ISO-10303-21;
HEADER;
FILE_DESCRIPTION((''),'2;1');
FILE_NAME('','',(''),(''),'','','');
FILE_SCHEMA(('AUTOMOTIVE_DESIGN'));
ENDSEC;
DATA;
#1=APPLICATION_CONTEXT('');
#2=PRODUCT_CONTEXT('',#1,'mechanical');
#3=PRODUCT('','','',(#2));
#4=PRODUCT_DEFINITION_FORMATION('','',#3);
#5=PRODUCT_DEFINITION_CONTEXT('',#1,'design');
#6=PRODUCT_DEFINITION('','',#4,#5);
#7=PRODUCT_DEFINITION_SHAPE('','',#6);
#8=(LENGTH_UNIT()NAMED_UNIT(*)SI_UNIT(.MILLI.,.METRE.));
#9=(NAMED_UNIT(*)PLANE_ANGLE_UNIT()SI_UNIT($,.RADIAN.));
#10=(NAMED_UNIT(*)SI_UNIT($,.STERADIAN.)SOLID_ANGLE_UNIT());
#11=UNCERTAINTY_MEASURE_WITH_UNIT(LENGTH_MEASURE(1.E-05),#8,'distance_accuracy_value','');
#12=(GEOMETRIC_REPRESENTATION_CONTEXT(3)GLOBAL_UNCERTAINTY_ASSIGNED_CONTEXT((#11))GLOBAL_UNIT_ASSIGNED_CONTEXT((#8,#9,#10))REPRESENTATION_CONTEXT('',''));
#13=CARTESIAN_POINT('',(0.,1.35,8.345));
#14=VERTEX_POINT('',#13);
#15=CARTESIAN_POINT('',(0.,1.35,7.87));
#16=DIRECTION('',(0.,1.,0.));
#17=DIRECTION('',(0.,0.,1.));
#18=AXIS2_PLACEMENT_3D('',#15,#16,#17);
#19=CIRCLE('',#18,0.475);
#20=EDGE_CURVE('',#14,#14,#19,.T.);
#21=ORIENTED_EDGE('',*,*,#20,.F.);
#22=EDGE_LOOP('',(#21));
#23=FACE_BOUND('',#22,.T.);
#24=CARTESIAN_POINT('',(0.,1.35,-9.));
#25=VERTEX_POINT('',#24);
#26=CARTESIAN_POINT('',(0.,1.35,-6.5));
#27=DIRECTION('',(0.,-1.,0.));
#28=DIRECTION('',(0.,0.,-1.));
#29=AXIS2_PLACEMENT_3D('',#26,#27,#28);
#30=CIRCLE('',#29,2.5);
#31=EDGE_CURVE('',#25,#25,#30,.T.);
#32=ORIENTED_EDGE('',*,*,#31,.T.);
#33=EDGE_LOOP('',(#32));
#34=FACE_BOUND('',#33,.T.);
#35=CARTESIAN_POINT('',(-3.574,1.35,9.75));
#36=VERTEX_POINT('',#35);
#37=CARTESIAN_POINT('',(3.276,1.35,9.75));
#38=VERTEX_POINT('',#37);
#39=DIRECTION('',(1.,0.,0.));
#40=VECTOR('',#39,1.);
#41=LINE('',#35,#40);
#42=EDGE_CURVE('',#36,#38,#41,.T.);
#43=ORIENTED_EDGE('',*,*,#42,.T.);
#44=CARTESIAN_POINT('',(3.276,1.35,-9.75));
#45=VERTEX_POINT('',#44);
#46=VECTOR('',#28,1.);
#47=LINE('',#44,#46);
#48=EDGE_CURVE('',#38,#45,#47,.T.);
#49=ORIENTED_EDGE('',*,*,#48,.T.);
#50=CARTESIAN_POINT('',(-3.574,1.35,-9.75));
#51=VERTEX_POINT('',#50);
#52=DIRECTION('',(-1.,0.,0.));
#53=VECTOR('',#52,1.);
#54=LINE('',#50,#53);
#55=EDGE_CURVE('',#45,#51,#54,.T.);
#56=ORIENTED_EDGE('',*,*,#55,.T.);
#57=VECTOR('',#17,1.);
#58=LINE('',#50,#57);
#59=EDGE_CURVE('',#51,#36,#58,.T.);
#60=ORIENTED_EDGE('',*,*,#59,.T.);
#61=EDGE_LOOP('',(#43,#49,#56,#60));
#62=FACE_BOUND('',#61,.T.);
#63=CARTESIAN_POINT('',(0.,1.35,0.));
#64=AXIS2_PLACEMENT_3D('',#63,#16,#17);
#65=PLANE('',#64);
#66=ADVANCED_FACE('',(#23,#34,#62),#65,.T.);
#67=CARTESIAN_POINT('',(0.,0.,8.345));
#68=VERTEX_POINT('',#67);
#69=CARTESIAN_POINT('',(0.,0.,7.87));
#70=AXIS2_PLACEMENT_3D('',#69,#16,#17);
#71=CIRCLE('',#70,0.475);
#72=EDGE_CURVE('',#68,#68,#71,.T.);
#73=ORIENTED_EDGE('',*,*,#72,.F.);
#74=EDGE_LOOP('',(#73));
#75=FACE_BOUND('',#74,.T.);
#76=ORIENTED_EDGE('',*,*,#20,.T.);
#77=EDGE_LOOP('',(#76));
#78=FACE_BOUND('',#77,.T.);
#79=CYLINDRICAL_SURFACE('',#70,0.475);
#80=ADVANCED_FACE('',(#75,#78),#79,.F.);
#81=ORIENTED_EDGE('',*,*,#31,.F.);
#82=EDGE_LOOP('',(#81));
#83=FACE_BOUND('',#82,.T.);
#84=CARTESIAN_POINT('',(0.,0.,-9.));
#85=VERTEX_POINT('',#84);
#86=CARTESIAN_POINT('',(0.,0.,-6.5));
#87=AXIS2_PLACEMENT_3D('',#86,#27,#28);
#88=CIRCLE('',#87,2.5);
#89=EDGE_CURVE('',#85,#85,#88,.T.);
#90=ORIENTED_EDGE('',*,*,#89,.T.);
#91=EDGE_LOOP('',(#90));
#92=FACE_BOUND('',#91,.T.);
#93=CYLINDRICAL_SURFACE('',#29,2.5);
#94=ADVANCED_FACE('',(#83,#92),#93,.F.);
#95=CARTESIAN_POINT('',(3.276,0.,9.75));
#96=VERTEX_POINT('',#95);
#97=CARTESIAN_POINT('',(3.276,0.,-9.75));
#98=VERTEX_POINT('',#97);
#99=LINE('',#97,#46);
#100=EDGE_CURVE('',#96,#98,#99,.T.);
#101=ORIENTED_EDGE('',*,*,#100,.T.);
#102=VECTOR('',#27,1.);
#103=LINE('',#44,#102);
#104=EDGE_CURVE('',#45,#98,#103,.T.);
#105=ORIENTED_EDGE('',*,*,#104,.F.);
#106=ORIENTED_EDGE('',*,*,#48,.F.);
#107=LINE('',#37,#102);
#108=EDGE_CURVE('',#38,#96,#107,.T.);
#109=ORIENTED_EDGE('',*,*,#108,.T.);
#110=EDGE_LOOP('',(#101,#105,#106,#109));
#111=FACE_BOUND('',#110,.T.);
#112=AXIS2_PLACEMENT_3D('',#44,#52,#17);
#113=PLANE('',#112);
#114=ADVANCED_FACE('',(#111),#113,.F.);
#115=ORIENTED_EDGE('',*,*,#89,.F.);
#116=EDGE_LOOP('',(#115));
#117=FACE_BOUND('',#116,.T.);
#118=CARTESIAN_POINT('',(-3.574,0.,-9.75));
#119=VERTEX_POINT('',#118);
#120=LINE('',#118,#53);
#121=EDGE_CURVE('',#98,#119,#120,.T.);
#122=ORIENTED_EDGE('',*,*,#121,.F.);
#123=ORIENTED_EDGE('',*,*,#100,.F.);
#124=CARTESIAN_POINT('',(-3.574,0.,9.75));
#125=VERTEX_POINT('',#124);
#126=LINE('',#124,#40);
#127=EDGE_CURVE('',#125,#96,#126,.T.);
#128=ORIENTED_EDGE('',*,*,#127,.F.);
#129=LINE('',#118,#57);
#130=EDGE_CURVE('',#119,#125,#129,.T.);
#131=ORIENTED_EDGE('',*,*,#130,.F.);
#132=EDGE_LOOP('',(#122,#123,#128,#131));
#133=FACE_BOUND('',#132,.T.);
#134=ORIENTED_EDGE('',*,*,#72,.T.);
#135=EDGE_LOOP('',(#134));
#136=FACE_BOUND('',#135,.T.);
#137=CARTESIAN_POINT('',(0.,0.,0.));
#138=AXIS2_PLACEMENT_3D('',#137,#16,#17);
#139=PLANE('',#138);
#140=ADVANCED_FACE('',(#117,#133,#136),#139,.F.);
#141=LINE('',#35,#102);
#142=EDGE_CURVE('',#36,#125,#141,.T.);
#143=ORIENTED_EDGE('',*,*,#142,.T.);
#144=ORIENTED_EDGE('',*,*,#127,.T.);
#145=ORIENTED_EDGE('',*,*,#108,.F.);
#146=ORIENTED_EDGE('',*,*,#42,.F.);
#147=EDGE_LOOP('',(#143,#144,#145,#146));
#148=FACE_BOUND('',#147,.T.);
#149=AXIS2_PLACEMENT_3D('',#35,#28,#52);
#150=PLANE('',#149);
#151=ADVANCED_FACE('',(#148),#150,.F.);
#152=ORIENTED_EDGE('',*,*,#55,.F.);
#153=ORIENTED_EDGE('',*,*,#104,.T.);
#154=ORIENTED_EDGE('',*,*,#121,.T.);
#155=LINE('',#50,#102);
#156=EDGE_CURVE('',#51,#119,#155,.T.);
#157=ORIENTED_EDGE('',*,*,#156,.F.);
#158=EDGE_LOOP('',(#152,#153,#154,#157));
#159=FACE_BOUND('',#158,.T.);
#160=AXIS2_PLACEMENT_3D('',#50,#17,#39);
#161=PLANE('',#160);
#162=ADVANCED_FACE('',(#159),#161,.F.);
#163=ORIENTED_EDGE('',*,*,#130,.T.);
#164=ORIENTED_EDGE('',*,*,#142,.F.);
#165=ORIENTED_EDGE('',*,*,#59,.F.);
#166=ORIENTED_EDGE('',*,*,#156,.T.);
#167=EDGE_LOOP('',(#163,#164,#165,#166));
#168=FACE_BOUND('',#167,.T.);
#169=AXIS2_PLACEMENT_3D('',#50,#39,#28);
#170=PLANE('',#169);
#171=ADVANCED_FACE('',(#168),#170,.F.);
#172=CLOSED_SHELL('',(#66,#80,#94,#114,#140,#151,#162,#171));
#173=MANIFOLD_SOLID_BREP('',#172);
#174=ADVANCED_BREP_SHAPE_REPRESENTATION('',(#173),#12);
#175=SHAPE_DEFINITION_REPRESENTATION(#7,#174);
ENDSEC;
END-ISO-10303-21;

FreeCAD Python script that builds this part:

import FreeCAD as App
import Part
import Sketcher
Q = App.Units.Quantity

doc = App.newDocument("Part")
body = doc.addObject("PartDesign::Body", "Body")

# Sketch on XZ plane
sketch1 = body.newObject("Sketcher::SketchObject", "Sketch")
sketch1.AttachmentSupport = (doc.getObject("XZ_Plane"), [""])
sketch1.MapMode = "FlatFace"
sketch1.addGeometry(Part.LineSegment(App.Vector(-4, -10, 0), App.Vector(-4, 10, 0)), False)
sketch1.addGeometry(Part.LineSegment(App.Vector(-4, 10, 0), App.Vector(3, 10, 0)), False)
sketch1.addGeometry(Part.LineSegment(App.Vector(3, 10, 0), App.Vector(3, -10, 0)), False)
sketch1.addGeometry(Part.LineSegment(App.Vector(3, -10, 0), App.Vector(-4, -10, 0)), False)
sketch1.addConstraint(Sketcher.Constraint("Coincident", 0, 2, 1, 1))
sketch1.addConstraint(Sketcher.Constraint("Coincident", 1, 2, 2, 1))
sketch1.addConstraint(Sketcher.Constraint("Coincident", 2, 2, 3, 1))
sketch1.addConstraint(Sketcher.Constraint("Coincident", 3, 2, 0, 1))
sketch1.addConstraint(Sketcher.Constraint("Vertical", 0))
sketch1.addConstraint(Sketcher.Constraint("Horizontal", 1))
sketch1.addConstraint(Sketcher.Constraint("Vertical", 2))
sketch1.addConstraint(Sketcher.Constraint("Horizontal", 3))
sketch1.addConstraint(Sketcher.Constraint("DistanceY", 0, 1, 0, 2, Q("19.5 mm")))
sketch1.addConstraint(Sketcher.Constraint("DistanceX", 1, 1, 1, 2, Q("6.85 mm")))
sketch1.addConstraint(Sketcher.Constraint("DistanceY", -1, 1, 0, 2, Q("9.75 mm")))
sketch1.addConstraint(Sketcher.Constraint("DistanceX", 0, 2, -1, 1, Q("3.574 mm")))
pad1 = body.newObject("PartDesign::Pad", "Pad")
pad1.Profile = sketch1
pad1.Length = 1.35
pad1.Reversed = True

# Sketch on XZ plane
sketch2 = body.newObject("Sketcher::SketchObject", "Sketch001")
sketch2.AttachmentSupport = (doc.getObject("XZ_Plane"), [""])
sketch2.MapMode = "FlatFace"
sketch2.addGeometry(Part.Circle(App.Vector(0, -6.5, 0), App.Vector(0, 0, 1), 2.5), False)
sketch2.addConstraint(Sketcher.Constraint("PointOnObject", 0, 3, -2))
sketch2.addConstraint(Sketcher.Constraint("Diameter", 0, Q("5 mm")))
sketch2.addConstraint(Sketcher.Constraint("DistanceY", 0, 3, -1, 1, Q("6.5 mm")))
pocket1 = body.newObject("PartDesign::Pocket", "Pocket")
pocket1.Profile = sketch2
pocket1.Length = 1.35

# Sketch on XZ plane
sketch3 = body.newObject("Sketcher::SketchObject", "Sketch002")
sketch3.AttachmentSupport = (doc.getObject("XZ_Plane"), [""])
sketch3.MapMode = "FlatFace"
sketch3.AttachmentOffset = App.Placement(App.Vector(0, 0, -1.35), App.Rotation())
sketch3.addGeometry(Part.Circle(App.Vector(0, 7.87, 0), App.Vector(0, 0, 1), 0.47), False)
sketch3.addConstraint(Sketcher.Constraint("PointOnObject", 0, 3, -2))
sketch3.addConstraint(Sketcher.Constraint("Diameter", 0, Q("0.95 mm")))
sketch3.addConstraint(Sketcher.Constraint("DistanceY", -1, 1, 0, 3, Q("7.87 mm")))
pocket2 = body.newObject("PartDesign::Pocket", "Pocket001")
pocket2.Profile = sketch3
pocket2.Length = 1.35
pocket2.Reversed = True

doc.recompute()
